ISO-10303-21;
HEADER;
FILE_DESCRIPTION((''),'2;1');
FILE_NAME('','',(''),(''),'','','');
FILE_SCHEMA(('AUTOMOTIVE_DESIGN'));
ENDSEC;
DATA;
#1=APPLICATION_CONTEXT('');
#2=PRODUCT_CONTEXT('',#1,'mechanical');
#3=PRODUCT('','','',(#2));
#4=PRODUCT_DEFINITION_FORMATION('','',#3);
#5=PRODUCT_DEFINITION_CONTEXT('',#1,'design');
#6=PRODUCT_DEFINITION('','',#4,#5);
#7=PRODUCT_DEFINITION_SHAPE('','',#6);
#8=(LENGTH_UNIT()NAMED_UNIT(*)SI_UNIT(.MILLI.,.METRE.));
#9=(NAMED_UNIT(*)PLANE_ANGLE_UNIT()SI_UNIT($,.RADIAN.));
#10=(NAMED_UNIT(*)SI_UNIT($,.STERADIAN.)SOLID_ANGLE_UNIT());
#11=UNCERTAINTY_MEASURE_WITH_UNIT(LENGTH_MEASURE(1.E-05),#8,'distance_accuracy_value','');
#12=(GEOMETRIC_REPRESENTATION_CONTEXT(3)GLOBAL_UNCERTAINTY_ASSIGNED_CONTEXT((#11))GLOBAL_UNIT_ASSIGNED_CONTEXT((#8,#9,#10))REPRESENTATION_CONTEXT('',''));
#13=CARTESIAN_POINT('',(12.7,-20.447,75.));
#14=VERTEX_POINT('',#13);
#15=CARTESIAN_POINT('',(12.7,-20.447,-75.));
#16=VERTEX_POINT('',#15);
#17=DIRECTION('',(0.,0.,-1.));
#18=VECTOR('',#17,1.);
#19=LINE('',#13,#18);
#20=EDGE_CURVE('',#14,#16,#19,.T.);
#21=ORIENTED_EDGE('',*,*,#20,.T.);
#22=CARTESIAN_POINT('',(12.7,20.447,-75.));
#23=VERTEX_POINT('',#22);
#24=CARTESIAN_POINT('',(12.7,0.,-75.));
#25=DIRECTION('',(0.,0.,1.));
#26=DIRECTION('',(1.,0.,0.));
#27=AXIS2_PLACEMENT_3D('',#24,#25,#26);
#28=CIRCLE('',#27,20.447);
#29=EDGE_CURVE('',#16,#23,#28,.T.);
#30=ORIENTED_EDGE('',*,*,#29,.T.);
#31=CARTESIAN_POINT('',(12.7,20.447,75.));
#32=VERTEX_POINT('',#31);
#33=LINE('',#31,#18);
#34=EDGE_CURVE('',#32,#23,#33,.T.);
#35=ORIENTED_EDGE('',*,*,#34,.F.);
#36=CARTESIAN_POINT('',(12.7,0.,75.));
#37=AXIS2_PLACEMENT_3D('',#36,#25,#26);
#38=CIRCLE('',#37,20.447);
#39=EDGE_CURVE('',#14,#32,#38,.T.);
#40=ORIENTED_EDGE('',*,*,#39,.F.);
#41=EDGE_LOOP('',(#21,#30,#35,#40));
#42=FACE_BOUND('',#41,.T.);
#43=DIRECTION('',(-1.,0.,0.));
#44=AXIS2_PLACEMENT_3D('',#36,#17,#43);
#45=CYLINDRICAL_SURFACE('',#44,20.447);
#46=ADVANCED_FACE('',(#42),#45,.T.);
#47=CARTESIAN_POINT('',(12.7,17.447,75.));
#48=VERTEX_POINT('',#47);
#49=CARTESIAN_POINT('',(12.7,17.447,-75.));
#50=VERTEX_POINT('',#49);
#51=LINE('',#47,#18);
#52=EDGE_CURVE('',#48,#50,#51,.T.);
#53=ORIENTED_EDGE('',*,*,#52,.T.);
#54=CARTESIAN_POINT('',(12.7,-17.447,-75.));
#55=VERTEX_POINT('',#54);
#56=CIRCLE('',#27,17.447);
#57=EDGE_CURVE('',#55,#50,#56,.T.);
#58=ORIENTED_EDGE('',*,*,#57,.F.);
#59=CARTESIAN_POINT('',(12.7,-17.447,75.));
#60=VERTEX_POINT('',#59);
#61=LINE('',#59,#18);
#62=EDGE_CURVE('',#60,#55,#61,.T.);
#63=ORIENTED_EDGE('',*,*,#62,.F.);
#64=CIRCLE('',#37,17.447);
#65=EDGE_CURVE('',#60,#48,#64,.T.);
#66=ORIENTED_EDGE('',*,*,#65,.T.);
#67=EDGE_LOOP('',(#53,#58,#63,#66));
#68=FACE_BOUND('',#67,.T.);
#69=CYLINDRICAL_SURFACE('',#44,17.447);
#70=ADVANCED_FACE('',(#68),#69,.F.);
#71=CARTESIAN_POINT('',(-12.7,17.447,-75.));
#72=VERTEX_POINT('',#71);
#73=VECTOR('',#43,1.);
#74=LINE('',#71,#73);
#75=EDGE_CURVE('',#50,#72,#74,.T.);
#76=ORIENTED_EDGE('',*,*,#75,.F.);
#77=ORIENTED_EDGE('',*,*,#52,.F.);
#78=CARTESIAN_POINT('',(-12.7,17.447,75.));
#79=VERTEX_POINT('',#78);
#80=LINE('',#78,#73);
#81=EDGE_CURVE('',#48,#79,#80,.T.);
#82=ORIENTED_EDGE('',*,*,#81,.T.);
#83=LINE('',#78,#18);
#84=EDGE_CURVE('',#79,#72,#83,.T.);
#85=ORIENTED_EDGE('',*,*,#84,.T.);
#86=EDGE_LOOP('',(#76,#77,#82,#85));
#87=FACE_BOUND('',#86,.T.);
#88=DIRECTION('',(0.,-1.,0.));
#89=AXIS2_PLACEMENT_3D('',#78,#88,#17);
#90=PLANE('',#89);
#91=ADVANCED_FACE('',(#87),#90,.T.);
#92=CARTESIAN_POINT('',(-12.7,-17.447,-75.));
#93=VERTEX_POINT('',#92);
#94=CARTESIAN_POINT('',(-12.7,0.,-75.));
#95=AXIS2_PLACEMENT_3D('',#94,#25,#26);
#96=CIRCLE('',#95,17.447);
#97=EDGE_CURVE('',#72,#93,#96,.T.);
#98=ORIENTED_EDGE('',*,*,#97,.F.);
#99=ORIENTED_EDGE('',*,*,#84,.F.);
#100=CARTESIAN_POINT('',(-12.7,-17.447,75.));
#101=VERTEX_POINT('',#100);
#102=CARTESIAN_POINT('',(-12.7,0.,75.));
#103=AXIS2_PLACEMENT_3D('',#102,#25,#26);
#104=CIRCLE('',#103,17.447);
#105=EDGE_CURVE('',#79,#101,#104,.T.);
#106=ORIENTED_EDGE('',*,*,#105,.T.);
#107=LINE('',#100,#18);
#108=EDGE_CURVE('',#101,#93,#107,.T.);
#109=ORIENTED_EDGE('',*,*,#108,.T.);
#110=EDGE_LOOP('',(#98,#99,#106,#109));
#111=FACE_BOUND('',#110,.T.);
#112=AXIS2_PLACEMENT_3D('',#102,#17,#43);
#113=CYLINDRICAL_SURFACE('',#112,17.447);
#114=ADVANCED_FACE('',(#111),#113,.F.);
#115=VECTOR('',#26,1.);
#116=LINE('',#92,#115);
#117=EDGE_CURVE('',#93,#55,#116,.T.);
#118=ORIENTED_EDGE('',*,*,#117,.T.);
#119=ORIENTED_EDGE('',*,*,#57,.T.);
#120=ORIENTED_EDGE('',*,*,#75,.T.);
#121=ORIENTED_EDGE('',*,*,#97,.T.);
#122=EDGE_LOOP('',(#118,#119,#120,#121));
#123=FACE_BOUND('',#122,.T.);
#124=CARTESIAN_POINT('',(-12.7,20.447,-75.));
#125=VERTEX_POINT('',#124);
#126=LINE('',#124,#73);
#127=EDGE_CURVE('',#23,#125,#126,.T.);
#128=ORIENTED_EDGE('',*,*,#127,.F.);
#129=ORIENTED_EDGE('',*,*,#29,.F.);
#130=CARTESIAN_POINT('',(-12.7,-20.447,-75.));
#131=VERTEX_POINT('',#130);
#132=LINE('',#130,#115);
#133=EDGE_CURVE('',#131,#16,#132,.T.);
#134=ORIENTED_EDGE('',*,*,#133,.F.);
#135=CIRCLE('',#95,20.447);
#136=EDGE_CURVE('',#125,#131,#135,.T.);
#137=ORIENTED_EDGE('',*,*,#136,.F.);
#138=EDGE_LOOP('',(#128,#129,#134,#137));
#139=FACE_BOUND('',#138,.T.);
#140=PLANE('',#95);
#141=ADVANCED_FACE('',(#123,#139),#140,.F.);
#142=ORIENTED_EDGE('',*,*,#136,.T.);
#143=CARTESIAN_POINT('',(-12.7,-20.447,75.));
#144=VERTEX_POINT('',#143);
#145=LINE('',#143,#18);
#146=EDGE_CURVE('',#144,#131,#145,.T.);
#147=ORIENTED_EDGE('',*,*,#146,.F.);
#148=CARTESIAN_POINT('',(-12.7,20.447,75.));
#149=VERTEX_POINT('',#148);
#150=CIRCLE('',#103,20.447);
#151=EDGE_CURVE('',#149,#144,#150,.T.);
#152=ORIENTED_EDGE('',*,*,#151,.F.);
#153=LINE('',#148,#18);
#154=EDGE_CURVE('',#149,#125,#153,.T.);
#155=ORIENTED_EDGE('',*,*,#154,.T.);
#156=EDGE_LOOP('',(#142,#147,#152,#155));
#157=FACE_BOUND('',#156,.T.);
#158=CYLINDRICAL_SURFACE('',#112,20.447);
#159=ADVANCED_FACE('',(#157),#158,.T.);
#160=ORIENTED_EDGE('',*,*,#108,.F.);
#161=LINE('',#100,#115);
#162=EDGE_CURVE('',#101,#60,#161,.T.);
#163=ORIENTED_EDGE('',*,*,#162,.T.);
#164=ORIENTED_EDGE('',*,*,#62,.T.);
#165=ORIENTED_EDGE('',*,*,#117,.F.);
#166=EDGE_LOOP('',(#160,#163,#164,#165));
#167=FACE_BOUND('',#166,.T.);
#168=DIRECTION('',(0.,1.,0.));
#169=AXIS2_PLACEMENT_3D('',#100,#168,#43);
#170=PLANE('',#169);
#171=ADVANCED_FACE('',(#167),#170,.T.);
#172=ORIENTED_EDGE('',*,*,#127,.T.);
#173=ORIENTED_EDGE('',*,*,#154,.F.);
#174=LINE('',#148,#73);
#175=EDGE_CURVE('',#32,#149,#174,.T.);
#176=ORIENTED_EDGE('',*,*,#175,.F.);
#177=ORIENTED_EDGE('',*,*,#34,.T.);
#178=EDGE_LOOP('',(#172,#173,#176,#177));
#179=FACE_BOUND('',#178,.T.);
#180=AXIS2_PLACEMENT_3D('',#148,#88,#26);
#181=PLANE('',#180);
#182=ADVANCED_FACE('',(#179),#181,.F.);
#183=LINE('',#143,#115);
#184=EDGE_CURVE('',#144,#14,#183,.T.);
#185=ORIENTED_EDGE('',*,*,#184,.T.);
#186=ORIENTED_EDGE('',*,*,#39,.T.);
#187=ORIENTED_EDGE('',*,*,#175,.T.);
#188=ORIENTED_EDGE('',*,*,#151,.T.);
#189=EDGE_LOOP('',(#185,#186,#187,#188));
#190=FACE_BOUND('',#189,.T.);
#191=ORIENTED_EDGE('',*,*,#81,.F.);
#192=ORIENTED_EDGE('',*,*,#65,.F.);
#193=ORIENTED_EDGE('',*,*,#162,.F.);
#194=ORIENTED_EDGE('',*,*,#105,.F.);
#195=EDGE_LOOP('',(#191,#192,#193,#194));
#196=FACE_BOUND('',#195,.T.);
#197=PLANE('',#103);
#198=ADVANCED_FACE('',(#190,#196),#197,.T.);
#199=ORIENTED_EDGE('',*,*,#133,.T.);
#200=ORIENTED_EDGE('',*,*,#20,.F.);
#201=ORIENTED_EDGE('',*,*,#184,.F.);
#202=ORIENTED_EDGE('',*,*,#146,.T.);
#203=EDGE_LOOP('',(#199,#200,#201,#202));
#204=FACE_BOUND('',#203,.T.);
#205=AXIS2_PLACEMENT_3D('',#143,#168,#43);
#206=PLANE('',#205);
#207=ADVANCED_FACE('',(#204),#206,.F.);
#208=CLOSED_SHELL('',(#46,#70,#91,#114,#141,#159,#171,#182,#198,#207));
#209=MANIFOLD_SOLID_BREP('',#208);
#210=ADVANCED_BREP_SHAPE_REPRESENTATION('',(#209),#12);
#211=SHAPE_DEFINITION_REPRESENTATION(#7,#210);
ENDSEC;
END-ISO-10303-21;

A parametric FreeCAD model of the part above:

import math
import FreeCAD as App
import Part
import Sketcher

V = App.Vector
Q = App.Units.Quantity

doc = App.newDocument("Part")
params = doc.addObject("Spreadsheet::Sheet", "Params")
for row, (alias, value) in enumerate([
    ("sketch1_width", "1 in"),
    ("sketch1_radius", "0.805 in"),
    ("pad1_length", "150 mm"),
], start=1):
    params.set(f"A{row}", alias)
    params.set(f"B{row}", "=" + value)
    params.setAlias(f"B{row}", alias)

body = doc.addObject("PartDesign::Body", "Body")

# Sketch on XY plane
sketch1 = doc.addObject("Sketcher::SketchObject", "Sketch")
body.addObject(sketch1)
sketch1.AttachmentSupport = (doc.XY_Plane, [""])
sketch1.MapMode = "FlatFace"
sketch1.addGeometry(Part.LineSegment(V(13, 20, 0), V(-13, 20, 0)), False)
sketch1.addGeometry(Part.ArcOfCircle(Part.Circle(V(-13, 0, 0), V(0, 0, 1), 20), math.radians(90), math.radians(270)), False)
sketch1.addGeometry(Part.LineSegment(V(-13, -20, 0), V(13, -20, 0)), False)
sketch1.addGeometry(Part.ArcOfCircle(Part.Circle(V(13, 0, 0), V(0, 0, 1), 20), math.radians(-90), math.radians(90)), False)
sketch1.addGeometry(Part.LineSegment(V(-13, 17, 0), V(13, 17, 0)), False)
sketch1.addGeometry(Part.ArcOfCircle(Part.Circle(V(13, 0, 0), V(0, 0, 1), 17), math.radians(-90), math.radians(90)), False)
sketch1.addGeometry(Part.LineSegment(V(13, -17, 0), V(-13, -17, 0)), False)
sketch1.addGeometry(Part.ArcOfCircle(Part.Circle(V(-13, 0, 0), V(0, 0, 1), 17), math.radians(90), math.radians(270)), False)
sketch1.addConstraint(Sketcher.Constraint("Tangent", 0, 2, 1, 1))
sketch1.addConstraint(Sketcher.Constraint("Tangent", 1, 2, 2, 1))
sketch1.addConstraint(Sketcher.Constraint("Tangent", 2, 2, 3, 1))
sketch1.addConstraint(Sketcher.Constraint("Tangent", 3, 2, 0, 1))
sketch1.addConstraint(Sketcher.Constraint("Tangent", 4, 2, 5, 2))
sketch1.addConstraint(Sketcher.Constraint("Tangent", 5, 1, 6, 1))
sketch1.addConstraint(Sketcher.Constraint("Tangent", 6, 2, 7, 2))
sketch1.addConstraint(Sketcher.Constraint("Tangent", 7, 1, 4, 1))
sketch1.addConstraint(Sketcher.Constraint("Horizontal", 0))
sketch1.addConstraint(Sketcher.Constraint("Horizontal", 2))
sketch1.addConstraint(Sketcher.Constraint("Horizontal", 4))
sketch1.addConstraint(Sketcher.Constraint("Horizontal", 6))
sketch1.addConstraint(Sketcher.Constraint("Coincident", 5, 3, 3, 3))
sketch1.addConstraint(Sketcher.Constraint("Symmetric", 1, 3, 3, 3, -1, 1))
sketch1.addConstraint(Sketcher.Constraint("Vertical", 7, 3, 0, 2))
sketch1.addConstraint(Sketcher.Constraint("DistanceX", 0, 2, 0, 1, Q("1 in")))
sketch1.addConstraint(Sketcher.Constraint("Radius", 1, Q("0.805 in")))
sketch1.addConstraint(Sketcher.Constraint("Radius", 5, 17.447))
sketch1.setExpression("Constraints[15]", "Params.sketch1_width")
sketch1.setExpression("Constraints[16]", "Params.sketch1_radius")
pad1 = doc.addObject("PartDesign::Pad", "Pad")
body.addObject(pad1)
pad1.Profile = sketch1
pad1.setExpression("Length", "Params.pad1_length")
pad1.Midplane = True

doc.recompute()
